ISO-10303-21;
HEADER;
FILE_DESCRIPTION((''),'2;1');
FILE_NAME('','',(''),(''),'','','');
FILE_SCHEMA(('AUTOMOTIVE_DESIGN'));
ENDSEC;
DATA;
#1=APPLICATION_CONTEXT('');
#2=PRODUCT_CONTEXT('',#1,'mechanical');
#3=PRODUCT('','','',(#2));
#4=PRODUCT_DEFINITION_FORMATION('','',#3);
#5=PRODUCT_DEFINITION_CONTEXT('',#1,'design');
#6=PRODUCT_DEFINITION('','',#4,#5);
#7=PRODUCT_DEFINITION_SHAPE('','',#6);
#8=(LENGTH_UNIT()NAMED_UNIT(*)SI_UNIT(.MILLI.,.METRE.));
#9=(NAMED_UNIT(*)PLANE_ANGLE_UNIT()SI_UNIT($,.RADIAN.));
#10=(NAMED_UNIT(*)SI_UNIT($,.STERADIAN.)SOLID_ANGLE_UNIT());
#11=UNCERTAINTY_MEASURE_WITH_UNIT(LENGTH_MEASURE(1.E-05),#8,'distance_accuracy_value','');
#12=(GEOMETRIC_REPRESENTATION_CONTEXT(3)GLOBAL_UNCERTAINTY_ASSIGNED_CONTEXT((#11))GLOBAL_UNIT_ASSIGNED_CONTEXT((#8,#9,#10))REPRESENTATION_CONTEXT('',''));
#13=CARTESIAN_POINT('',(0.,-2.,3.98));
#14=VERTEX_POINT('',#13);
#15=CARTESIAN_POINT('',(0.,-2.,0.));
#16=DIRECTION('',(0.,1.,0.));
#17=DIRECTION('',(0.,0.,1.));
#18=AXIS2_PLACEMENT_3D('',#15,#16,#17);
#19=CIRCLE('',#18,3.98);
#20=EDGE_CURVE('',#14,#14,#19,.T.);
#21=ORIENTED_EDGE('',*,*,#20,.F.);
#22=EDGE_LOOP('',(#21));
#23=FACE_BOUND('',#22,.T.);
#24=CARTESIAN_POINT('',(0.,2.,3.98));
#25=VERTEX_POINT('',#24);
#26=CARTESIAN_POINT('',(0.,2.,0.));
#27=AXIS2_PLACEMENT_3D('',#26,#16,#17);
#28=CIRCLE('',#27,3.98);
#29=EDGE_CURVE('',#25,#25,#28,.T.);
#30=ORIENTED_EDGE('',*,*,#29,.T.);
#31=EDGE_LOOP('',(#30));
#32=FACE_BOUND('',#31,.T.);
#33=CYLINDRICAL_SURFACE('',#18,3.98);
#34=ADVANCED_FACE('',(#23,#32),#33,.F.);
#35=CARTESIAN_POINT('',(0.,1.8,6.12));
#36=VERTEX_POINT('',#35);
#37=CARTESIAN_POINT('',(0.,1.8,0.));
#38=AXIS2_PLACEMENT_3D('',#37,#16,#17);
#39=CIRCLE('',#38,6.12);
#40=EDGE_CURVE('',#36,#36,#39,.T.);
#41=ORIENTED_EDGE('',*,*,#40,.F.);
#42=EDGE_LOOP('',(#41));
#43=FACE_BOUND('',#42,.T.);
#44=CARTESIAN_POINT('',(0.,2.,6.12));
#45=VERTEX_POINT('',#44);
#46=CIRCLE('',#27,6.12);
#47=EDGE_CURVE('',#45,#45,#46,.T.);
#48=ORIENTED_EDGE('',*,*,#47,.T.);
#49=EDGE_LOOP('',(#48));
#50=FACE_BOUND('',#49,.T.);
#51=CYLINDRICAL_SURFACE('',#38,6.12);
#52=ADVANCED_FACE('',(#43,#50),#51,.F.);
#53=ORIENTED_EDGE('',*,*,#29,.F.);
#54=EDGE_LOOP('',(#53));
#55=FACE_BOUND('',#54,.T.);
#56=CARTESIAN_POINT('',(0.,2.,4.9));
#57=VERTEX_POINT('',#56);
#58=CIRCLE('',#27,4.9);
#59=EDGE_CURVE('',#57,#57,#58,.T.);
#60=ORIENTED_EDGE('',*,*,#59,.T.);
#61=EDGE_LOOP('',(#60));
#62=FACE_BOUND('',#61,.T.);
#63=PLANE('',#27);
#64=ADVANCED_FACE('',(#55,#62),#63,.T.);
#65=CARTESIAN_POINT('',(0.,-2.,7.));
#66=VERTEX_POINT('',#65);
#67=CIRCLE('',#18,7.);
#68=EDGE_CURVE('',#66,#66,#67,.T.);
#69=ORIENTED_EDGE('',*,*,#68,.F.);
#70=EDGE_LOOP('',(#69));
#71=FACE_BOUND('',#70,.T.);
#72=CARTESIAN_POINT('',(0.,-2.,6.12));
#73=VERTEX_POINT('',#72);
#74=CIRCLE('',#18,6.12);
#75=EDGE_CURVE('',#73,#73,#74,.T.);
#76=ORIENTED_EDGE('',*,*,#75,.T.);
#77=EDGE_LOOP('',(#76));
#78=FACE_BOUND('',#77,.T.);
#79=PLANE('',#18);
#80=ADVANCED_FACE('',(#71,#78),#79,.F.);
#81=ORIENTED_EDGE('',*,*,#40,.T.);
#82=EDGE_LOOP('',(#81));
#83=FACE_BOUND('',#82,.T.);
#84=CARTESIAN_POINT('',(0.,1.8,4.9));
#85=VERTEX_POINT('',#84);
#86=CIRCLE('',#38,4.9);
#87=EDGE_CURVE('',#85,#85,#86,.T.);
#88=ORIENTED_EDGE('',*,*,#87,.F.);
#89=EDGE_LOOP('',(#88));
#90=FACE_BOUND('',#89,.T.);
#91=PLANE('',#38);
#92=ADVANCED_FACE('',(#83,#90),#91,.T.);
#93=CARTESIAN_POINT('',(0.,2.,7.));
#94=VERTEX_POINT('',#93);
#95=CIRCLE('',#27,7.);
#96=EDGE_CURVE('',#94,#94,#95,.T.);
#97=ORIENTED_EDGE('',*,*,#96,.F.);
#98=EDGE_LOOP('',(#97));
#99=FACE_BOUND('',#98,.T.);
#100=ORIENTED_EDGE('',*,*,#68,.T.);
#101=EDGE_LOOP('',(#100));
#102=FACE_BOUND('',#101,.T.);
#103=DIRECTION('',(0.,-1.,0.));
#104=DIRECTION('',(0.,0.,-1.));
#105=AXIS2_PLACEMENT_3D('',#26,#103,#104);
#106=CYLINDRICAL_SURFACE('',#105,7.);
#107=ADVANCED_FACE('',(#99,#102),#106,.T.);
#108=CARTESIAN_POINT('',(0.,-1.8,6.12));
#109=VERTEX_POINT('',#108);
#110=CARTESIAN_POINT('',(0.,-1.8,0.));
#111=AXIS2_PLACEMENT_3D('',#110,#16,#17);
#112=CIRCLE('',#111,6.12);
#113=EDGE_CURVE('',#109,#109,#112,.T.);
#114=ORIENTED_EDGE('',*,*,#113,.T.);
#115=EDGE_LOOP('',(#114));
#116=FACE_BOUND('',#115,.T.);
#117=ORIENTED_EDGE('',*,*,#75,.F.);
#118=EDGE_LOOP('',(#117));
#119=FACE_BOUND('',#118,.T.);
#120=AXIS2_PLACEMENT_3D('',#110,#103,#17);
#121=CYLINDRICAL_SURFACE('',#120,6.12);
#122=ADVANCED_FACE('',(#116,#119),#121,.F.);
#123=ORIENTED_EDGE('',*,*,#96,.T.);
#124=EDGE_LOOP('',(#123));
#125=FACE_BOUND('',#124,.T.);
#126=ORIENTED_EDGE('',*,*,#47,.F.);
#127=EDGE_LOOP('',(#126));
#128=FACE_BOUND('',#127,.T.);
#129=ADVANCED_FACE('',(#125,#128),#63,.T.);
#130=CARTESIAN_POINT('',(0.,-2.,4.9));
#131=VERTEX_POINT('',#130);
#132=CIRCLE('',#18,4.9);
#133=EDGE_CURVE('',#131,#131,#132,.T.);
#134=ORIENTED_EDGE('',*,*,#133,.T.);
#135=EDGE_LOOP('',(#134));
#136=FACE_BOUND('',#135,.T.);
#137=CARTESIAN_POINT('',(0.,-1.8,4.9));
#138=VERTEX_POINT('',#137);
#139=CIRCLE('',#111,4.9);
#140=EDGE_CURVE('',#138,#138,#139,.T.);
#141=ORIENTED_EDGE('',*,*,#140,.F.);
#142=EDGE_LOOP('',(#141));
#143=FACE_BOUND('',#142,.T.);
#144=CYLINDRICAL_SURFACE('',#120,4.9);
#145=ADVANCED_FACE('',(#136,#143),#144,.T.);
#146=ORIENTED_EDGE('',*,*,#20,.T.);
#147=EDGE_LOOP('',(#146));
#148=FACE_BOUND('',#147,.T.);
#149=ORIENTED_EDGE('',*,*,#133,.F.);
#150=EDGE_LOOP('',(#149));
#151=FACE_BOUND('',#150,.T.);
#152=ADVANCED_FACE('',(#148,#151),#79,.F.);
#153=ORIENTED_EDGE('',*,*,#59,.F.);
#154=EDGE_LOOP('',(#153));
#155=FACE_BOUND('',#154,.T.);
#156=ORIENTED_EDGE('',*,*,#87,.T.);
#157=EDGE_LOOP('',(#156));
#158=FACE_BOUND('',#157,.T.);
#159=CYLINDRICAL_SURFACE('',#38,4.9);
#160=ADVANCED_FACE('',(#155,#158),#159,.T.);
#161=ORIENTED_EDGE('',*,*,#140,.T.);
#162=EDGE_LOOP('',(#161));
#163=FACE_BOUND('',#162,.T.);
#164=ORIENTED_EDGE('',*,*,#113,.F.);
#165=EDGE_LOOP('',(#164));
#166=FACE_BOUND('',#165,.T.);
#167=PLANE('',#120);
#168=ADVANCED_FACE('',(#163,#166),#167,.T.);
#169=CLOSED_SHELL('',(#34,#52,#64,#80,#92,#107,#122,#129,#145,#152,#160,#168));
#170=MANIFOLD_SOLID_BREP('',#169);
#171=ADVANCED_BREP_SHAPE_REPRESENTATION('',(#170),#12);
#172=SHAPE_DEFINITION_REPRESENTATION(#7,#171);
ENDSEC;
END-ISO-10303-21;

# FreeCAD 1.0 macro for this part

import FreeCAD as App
import Part
import Sketcher
from FreeCAD import Vector

doc = App.newDocument("Part")
params = doc.addObject("Spreadsheet::Sheet", "Params")
for row, (alias, value) in enumerate([
    ("sketch1_diameter", "14 mm"),
    ("pad1_length", "4 mm"),
    ("sketch2_diameter", "7.96 mm"),
    ("sketch3_diameter", "9.8 mm"),
    ("sketch3_diameter2", "12.24 mm"),
    ("pocket2_length", "0.2 mm"),
], start=1):
    params.set(f"A{row}", alias)
    params.set(f"B{row}", "=" + value)
    params.setAlias(f"B{row}", alias)

body = doc.addObject("PartDesign::Body", "Body")

sketch1 = body.newObject("Sketcher::SketchObject", "Sketch")
sketch1.AttachmentSupport = (doc.getObject("XZ_Plane"), [""])
sketch1.MapMode = "FlatFace"
sketch1.addGeometry(Part.Circle(Vector(0, 0, 0), Vector(0, 0, 1), 7), False)
sketch1.addConstraint(Sketcher.Constraint("Coincident", 0, 3, -1, 1))
sketch1.addConstraint(Sketcher.Constraint("Diameter", 0, 14.0))
sketch1.setExpression("Constraints[1]", "Params.sketch1_diameter")
pad1 = body.newObject("PartDesign::Pad", "Pad")
pad1.Profile = sketch1
pad1.setExpression("Length", "Params.pad1_length")
pad1.Midplane = True

sketch2 = body.newObject("Sketcher::SketchObject", "Sketch001")
sketch2.AttachmentSupport = (doc.getObject("XZ_Plane"), [""])
sketch2.MapMode = "FlatFace"
sketch2.addGeometry(Part.Circle(Vector(0, 0, 0), Vector(0, 0, 1), 4), False)
sketch2.addConstraint(Sketcher.Constraint("Coincident", 0, 3, -1, 1))
sketch2.addConstraint(Sketcher.Constraint("Diameter", 0, 7.96))
sketch2.setExpression("Constraints[1]", "Params.sketch2_diameter")
pocket1 = body.newObject("PartDesign::Pocket", "Pocket")
pocket1.Profile = sketch2
pocket1.Type = "ThroughAll"
pocket1.Midplane = True

sketch3 = body.newObject("Sketcher::SketchObject", "Sketch002")
sketch3.AttachmentSupport = (doc.getObject("XZ_Plane"), [""])
sketch3.MapMode = "FlatFace"
sketch3.AttachmentOffset = App.Placement(Vector(0, 0, -2), App.Rotation())
sketch3.addGeometry(Part.Circle(Vector(0, 0, 0), Vector(0, 0, 1), 6.1), False)
sketch3.addGeometry(Part.Circle(Vector(0, 0, 0), Vector(0, 0, 1), 4.9), False)
sketch3.addConstraint(Sketcher.Constraint("Coincident", 0, 3, -1, 1))
sketch3.addConstraint(Sketcher.Constraint("Coincident", 1, 3, -1, 1))
sketch3.addConstraint(Sketcher.Constraint("Diameter", 1, 9.8))
sketch3.addConstraint(Sketcher.Constraint("Diameter", 0, 12.24))
sketch3.setExpression("Constraints[2]", "Params.sketch3_diameter")
sketch3.setExpression("Constraints[3]", "Params.sketch3_diameter2")
pocket2 = body.newObject("PartDesign::Pocket", "Pocket001")
pocket2.Profile = sketch3
pocket2.setExpression("Length", "Params.pocket2_length")
pocket2.Reversed = True
doc.recompute()

mirrored = body.newObject("PartDesign::Mirrored", "Mirrored")
mirrored.Originals = [pocket2]
mirrored.MirrorPlane = (doc.getObject("XZ_Plane"), [""])
body.Tip = mirrored

doc.recompute()
